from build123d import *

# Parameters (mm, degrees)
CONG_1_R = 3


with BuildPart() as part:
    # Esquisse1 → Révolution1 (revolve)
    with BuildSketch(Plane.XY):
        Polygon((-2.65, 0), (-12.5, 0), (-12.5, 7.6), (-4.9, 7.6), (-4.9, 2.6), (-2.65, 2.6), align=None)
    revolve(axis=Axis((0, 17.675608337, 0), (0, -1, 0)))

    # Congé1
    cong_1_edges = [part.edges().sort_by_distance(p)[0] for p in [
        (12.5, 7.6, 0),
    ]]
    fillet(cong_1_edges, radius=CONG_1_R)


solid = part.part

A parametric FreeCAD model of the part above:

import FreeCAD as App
import Part
import Sketcher
from FreeCAD import Vector
Q = App.Units.Quantity


def edges_at(feature, points):
    """Names of the edges that pass closest to the given points."""
    edges = feature.Shape.Edges
    near = lambda p: min(range(len(edges)), key=lambda i: edges[i].distToShape(Part.Vertex(*p))[0])
    return sorted({f"Edge{near(p) + 1}" for p in points})


def add_polygon(sketch, points):
    """Adds a closed chain of lines whose ends are joined by coincident constraints."""
    first, n = sketch.GeometryCount, len(points)
    for a, b in zip(points, points[1:] + points[:1]):
        sketch.addGeometry(Part.LineSegment(App.Vector(*a, 0), App.Vector(*b, 0)), False)
    for i in range(n):
        sketch.addConstraint(Sketcher.Constraint("Coincident", first + i, 2, first + (i + 1) % n, 1))

doc = App.newDocument("Part")
body = doc.addObject("PartDesign::Body", "Body")

sketch1 = body.newObject("Sketcher::SketchObject", "Sketch")
sketch1.AttachmentSupport = (doc.getObject("XY_Plane"), [""])
sketch1.MapMode = "FlatFace"
add_polygon(sketch1, [(-12.5, 0), (-2.6, 0), (-2.6, 2.6), (-4.9, 2.6), (-4.9, 7.6), (-12.5, 7.6)])
sketch1.addConstraint(Sketcher.Constraint("Horizontal", 0))
sketch1.addConstraint(Sketcher.Constraint("Vertical", 1))
sketch1.addConstraint(Sketcher.Constraint("Horizontal", 2))
sketch1.addConstraint(Sketcher.Constraint("Vertical", 3))
sketch1.addConstraint(Sketcher.Constraint("Horizontal", 4))
sketch1.addConstraint(Sketcher.Constraint("Vertical", 5))
sketch1.addConstraint(Sketcher.Constraint("PointOnObject", 0, 2, -1))
sketch1.addConstraint(Sketcher.Constraint("Equal", 4, 5))
sketch1.addConstraint(Sketcher.Constraint("DistanceY", 3, 1, 3, 2, Q("5 mm")))
sketch1.addConstraint(Sketcher.Constraint("DistanceX", 4, 2, 4, 1, Q("7.6 mm")))
sketch1.addConstraint(Sketcher.Constraint("DistanceX", 0, 1, 0, 2, Q("9.85 mm")))
sketch1.addConstraint(Sketcher.Constraint("DistanceX", 2, 2, -1, 1, Q("4.9 mm")))
revolution = body.newObject("PartDesign::Revolution", "Revolution")
revolution.Profile = sketch1
revolution.ReferenceAxis = (sketch1, ["V_Axis"])
revolution.Angle = 360
doc.recompute()

fillet = body.newObject("PartDesign::Fillet", "Fillet")
fillet.Base = (revolution, edges_at(revolution, [(12.5, 7.6, 0)]))
fillet.Radius = 3

doc.recompute()
